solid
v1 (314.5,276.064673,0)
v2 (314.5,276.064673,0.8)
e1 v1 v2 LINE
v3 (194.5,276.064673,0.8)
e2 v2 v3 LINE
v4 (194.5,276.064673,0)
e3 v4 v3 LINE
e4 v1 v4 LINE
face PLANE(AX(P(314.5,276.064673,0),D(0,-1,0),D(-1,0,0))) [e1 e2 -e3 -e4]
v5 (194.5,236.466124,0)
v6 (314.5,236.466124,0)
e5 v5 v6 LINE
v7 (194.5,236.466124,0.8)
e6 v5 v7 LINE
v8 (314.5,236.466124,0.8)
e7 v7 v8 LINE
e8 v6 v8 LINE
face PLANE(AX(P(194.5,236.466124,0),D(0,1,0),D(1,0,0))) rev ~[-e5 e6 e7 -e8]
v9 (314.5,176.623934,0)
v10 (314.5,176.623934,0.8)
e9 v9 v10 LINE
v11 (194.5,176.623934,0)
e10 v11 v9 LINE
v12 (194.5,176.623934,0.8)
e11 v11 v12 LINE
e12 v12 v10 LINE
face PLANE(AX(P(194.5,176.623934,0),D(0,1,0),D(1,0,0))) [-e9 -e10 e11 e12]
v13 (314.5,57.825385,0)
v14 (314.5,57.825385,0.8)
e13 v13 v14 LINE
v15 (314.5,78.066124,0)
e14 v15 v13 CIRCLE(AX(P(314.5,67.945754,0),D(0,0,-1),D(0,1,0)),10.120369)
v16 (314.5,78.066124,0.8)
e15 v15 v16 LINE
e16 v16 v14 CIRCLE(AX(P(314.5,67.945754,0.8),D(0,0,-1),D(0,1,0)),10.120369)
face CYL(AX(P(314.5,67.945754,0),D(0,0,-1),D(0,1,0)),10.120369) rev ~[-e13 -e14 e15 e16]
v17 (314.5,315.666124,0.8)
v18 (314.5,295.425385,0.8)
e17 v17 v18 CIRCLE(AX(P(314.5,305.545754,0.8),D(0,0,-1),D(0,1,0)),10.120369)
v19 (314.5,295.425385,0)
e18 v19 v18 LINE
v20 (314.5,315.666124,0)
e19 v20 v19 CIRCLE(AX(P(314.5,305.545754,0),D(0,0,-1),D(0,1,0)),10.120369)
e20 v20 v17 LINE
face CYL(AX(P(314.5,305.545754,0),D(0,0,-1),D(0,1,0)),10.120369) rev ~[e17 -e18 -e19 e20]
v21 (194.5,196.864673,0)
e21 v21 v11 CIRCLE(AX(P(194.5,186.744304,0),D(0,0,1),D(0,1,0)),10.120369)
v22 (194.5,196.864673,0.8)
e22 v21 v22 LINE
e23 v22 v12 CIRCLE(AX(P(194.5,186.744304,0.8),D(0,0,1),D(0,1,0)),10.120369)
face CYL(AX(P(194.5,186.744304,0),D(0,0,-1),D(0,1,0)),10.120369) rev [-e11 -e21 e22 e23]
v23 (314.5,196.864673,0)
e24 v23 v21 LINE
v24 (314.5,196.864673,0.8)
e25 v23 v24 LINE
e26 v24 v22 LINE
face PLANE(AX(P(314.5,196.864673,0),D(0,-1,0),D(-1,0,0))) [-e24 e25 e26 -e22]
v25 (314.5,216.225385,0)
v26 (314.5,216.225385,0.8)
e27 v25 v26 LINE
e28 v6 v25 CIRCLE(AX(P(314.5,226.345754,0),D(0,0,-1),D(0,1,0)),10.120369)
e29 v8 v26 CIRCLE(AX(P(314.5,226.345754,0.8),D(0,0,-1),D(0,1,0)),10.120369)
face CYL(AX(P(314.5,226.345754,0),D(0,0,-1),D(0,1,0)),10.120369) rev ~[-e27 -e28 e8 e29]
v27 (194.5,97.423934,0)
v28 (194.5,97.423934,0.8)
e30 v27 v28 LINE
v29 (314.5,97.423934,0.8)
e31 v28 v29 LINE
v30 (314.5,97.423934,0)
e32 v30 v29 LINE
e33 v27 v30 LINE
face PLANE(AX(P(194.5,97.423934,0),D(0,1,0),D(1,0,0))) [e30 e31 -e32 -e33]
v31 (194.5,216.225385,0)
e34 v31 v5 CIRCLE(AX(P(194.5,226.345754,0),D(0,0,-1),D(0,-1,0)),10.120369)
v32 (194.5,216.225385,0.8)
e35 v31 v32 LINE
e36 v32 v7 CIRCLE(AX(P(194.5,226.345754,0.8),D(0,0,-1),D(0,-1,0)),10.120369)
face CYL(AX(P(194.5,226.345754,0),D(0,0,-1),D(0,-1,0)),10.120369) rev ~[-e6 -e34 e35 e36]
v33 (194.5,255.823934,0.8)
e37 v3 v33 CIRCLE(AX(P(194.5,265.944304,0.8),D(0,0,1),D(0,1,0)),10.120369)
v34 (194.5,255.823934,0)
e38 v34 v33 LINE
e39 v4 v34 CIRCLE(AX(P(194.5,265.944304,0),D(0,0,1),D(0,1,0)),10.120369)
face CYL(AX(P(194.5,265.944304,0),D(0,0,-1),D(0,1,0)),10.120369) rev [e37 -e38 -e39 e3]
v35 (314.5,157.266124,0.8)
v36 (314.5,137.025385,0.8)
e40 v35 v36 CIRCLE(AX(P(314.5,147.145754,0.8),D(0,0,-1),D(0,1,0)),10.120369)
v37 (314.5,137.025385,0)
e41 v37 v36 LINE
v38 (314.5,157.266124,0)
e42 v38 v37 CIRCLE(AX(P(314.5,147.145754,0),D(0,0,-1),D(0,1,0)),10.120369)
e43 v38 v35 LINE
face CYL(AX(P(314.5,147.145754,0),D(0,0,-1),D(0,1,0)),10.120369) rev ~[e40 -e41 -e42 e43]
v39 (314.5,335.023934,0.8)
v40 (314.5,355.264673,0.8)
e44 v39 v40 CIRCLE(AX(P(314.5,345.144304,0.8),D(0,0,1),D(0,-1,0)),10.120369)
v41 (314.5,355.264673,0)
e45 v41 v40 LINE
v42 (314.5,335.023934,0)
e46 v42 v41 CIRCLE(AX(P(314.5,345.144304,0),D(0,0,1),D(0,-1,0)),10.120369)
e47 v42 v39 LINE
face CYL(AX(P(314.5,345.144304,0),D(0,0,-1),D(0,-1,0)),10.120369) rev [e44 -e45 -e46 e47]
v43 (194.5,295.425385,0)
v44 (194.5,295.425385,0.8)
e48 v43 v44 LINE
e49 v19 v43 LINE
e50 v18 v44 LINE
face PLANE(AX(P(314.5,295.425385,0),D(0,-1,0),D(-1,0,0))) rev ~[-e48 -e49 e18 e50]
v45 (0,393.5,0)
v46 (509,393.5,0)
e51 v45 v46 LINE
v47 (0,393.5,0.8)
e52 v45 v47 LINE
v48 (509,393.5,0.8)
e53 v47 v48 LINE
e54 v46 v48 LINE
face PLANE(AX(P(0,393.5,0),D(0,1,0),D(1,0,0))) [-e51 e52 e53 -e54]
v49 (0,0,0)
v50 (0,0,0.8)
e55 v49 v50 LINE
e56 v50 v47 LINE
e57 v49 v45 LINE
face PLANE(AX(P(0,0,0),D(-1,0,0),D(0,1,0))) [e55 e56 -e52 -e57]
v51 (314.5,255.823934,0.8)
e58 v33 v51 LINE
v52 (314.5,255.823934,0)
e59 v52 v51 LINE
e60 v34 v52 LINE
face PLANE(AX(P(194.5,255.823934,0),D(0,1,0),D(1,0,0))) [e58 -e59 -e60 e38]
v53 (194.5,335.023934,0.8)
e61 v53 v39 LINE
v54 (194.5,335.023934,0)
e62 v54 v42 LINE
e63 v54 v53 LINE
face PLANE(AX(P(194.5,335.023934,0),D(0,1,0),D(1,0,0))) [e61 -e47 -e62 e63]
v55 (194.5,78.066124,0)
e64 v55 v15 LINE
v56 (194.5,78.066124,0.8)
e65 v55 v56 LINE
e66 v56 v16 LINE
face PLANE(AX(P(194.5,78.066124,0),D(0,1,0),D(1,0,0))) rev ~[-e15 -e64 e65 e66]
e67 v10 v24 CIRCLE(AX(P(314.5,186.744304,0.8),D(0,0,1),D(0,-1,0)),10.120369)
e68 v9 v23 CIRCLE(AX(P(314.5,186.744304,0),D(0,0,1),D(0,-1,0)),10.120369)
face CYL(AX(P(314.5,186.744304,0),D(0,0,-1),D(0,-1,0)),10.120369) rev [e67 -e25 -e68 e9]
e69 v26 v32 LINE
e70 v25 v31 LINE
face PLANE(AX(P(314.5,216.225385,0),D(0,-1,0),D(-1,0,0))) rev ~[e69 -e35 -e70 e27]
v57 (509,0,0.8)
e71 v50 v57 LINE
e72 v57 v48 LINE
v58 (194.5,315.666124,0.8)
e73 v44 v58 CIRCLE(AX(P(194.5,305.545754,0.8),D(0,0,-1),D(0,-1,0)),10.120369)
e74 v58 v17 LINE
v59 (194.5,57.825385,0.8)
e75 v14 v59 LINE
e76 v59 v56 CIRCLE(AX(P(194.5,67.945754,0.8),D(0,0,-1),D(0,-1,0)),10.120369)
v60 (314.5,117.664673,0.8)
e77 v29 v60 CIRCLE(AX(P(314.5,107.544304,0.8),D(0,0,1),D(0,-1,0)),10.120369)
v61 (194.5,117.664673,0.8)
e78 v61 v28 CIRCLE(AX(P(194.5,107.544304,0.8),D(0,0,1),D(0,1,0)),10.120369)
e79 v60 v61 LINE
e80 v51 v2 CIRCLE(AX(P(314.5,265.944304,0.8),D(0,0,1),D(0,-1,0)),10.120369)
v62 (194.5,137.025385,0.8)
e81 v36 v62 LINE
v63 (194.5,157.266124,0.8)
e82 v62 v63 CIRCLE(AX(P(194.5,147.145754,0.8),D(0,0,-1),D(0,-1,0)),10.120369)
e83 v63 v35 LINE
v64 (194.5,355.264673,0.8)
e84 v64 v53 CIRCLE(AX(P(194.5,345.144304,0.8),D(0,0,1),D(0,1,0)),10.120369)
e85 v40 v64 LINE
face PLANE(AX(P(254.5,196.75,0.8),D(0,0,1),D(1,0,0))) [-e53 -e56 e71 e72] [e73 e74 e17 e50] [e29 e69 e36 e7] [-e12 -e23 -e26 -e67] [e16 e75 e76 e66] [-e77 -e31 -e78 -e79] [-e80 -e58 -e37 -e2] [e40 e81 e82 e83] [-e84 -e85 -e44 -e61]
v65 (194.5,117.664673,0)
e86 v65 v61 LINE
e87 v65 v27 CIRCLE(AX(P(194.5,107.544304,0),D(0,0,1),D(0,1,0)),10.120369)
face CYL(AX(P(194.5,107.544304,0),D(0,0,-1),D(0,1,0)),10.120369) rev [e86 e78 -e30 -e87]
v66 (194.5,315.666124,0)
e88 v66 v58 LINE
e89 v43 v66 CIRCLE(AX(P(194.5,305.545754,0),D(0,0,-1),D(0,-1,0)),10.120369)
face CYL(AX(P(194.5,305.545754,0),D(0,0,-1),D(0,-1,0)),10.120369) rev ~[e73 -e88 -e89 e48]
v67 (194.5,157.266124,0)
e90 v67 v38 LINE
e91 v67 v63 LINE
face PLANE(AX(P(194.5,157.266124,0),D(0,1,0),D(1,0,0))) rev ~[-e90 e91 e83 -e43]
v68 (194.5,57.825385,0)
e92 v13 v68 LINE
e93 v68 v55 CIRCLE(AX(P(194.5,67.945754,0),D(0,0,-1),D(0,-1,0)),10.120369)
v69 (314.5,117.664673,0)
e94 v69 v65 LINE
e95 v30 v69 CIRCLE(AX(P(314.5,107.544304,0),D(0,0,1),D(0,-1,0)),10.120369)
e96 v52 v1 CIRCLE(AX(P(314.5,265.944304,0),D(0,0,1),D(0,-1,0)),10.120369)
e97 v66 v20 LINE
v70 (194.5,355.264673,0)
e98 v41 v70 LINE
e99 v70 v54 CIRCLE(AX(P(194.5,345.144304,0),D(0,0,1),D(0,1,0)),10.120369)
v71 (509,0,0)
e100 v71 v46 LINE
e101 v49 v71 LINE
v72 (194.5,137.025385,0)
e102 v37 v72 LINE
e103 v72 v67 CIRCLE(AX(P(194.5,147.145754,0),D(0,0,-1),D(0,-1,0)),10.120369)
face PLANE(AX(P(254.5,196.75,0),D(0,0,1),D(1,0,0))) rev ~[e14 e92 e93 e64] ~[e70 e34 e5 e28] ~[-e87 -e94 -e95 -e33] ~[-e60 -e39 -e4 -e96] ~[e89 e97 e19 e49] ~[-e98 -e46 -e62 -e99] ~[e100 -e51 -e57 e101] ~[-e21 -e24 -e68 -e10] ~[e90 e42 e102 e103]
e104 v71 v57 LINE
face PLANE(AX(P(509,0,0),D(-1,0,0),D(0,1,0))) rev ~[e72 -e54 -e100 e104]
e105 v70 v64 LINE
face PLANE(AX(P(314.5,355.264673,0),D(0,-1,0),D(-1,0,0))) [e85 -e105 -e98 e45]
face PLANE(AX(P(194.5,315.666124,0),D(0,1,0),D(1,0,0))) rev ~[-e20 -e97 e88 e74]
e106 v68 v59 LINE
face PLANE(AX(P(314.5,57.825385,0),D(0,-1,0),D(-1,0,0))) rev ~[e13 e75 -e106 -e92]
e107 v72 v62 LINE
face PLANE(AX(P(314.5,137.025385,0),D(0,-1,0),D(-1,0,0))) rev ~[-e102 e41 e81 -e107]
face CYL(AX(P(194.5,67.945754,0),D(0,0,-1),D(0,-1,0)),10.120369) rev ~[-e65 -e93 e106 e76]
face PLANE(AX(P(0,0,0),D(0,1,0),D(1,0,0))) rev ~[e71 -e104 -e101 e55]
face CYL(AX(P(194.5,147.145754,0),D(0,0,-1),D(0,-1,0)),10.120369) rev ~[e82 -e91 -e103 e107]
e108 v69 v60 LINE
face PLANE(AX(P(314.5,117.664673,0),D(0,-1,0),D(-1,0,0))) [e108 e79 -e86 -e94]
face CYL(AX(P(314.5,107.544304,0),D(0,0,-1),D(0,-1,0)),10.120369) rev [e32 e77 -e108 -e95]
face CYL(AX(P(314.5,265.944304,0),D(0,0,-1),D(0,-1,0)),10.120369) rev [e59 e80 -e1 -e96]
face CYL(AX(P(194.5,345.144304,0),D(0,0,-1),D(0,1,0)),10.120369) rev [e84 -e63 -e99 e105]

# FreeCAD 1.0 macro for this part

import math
import FreeCAD as App
import Part
import Sketcher

V = App.Vector
Q = App.Units.Quantity

doc = App.newDocument("Part")
body = doc.addObject("PartDesign::Body", "Body")

# Sketch on XY plane
sketch1 = body.newObject("Sketcher::SketchObject", "Sketch")
sketch1.AttachmentSupport = (doc.getObject("XY_Plane"), [""])
sketch1.MapMode = "FlatFace"
sketch1.addGeometry([
    Part.LineSegment(V(0, 394, 0), V(0, 0, 0)),  # 0
    Part.LineSegment(V(0, 0, 0), V(509, 0, 0)),  # 1
    Part.LineSegment(V(509, 0, 0), V(509, 394, 0)),  # 2
    Part.LineSegment(V(509, 394, 0), V(0, 394, 0)),  # 3
    Part.ArcOfCircle(Part.Circle(V(194, 68, 0), V(0, 0, 1), 10), math.radians(90), math.radians(270)),  # 4
    Part.LineSegment(V(194, 78, 0), V(314, 78, 0)),  # 5
    Part.ArcOfCircle(Part.Circle(V(314, 68, 0), V(0, 0, 1), 10), math.radians(-90), math.radians(90)),  # 6
    Part.LineSegment(V(314, 58, 0), V(194, 58, 0)),  # 7
    Part.ArcOfCircle(Part.Circle(V(314, 108, 0), V(0, 0, 1), 10), math.radians(-90), math.radians(90)),  # 8
    Part.LineSegment(V(314, 97, 0), V(194, 97, 0)),  # 9
    Part.ArcOfCircle(Part.Circle(V(194, 108, 0), V(0, 0, 1), 10), math.radians(90), math.radians(270)),  # 10
    Part.LineSegment(V(194, 118, 0), V(314, 118, 0)),  # 11
    Part.ArcOfCircle(Part.Circle(V(194, 147, 0), V(0, 0, 1), 10), math.radians(90), math.radians(270)),  # 12
    Part.LineSegment(V(194, 157, 0), V(314, 157, 0)),  # 13
    Part.ArcOfCircle(Part.Circle(V(314, 147, 0), V(0, 0, 1), 10), math.radians(-90), math.radians(90)),  # 14
    Part.LineSegment(V(314, 137, 0), V(194, 137, 0)),  # 15
    Part.ArcOfCircle(Part.Circle(V(314, 187, 0), V(0, 0, 1), 10), math.radians(-90), math.radians(90)),  # 16
    Part.LineSegment(V(314, 177, 0), V(194, 177, 0)),  # 17
    Part.ArcOfCircle(Part.Circle(V(194, 187, 0), V(0, 0, 1), 10), math.radians(90), math.radians(270)),  # 18
    Part.LineSegment(V(194, 197, 0), V(314, 197, 0)),  # 19
    Part.ArcOfCircle(Part.Circle(V(194, 226, 0), V(0, 0, 1), 10), math.radians(90), math.radians(270)),  # 20
    Part.LineSegment(V(194, 236, 0), V(314, 236, 0)),  # 21
    Part.ArcOfCircle(Part.Circle(V(314, 226, 0), V(0, 0, 1), 10), math.radians(-90), math.radians(90)),  # 22
    Part.LineSegment(V(314, 216, 0), V(194, 216, 0)),  # 23
    Part.ArcOfCircle(Part.Circle(V(314, 266, 0), V(0, 0, 1), 10), math.radians(-90), math.radians(90)),  # 24
    Part.LineSegment(V(314, 256, 0), V(194, 256, 0)),  # 25
    Part.ArcOfCircle(Part.Circle(V(194, 266, 0), V(0, 0, 1), 10), math.radians(90), math.radians(270)),  # 26
    Part.LineSegment(V(194, 276, 0), V(314, 276, 0)),  # 27
    Part.ArcOfCircle(Part.Circle(V(194, 306, 0), V(0, 0, 1), 10), math.radians(90), math.radians(270)),  # 28
    Part.LineSegment(V(194, 316, 0), V(314, 316, 0)),  # 29
    Part.ArcOfCircle(Part.Circle(V(314, 306, 0), V(0, 0, 1), 10), math.radians(-90), math.radians(90)),  # 30
    Part.LineSegment(V(314, 295, 0), V(194, 295, 0)),  # 31
    Part.ArcOfCircle(Part.Circle(V(314, 345, 0), V(0, 0, 1), 10), math.radians(-90), math.radians(90)),  # 32
    Part.LineSegment(V(314, 335, 0), V(194, 335, 0)),  # 33
    Part.ArcOfCircle(Part.Circle(V(194, 345, 0), V(0, 0, 1), 10), math.radians(90), math.radians(270)),  # 34
    Part.LineSegment(V(194, 355, 0), V(314, 355, 0)),  # 35
], False)
sketch1.addConstraint([
    Sketcher.Constraint("Coincident", 0, 2, 1, 1),
    Sketcher.Constraint("Coincident", 1, 2, 2, 1),
    Sketcher.Constraint("Coincident", 2, 2, 3, 1),
    Sketcher.Constraint("Coincident", 3, 2, 0, 1),
    Sketcher.Constraint("Tangent", 4, 1, 5, 1),
    Sketcher.Constraint("Tangent", 5, 2, 6, 2),
    Sketcher.Constraint("Tangent", 6, 1, 7, 1),
    Sketcher.Constraint("Tangent", 7, 2, 4, 2),
    Sketcher.Constraint("Tangent", 8, 1, 9, 1),
    Sketcher.Constraint("Tangent", 9, 2, 10, 2),
    Sketcher.Constraint("Tangent", 10, 1, 11, 1),
    Sketcher.Constraint("Tangent", 11, 2, 8, 2),
    Sketcher.Constraint("Tangent", 12, 1, 13, 1),
    Sketcher.Constraint("Tangent", 13, 2, 14, 2),
    Sketcher.Constraint("Tangent", 14, 1, 15, 1),
    Sketcher.Constraint("Tangent", 15, 2, 12, 2),
    Sketcher.Constraint("Tangent", 16, 1, 17, 1),
    Sketcher.Constraint("Tangent", 17, 2, 18, 2),
    Sketcher.Constraint("Tangent", 18, 1, 19, 1),
    Sketcher.Constraint("Tangent", 19, 2, 16, 2),
    Sketcher.Constraint("Tangent", 20, 1, 21, 1),
    Sketcher.Constraint("Tangent", 21, 2, 22, 2),
    Sketcher.Constraint("Tangent", 22, 1, 23, 1),
    Sketcher.Constraint("Tangent", 23, 2, 20, 2),
    Sketcher.Constraint("Tangent", 24, 1, 25, 1),
    Sketcher.Constraint("Tangent", 25, 2, 26, 2),
    Sketcher.Constraint("Tangent", 26, 1, 27, 1),
    Sketcher.Constraint("Tangent", 27, 2, 24, 2),
    Sketcher.Constraint("Tangent", 28, 1, 29, 1),
    Sketcher.Constraint("Tangent", 29, 2, 30, 2),
    Sketcher.Constraint("Tangent", 30, 1, 31, 1),
    Sketcher.Constraint("Tangent", 31, 2, 28, 2),
    Sketcher.Constraint("Tangent", 32, 1, 33, 1),
    Sketcher.Constraint("Tangent", 33, 2, 34, 2),
    Sketcher.Constraint("Tangent", 34, 1, 35, 1),
    Sketcher.Constraint("Tangent", 35, 2, 32, 2),
    Sketcher.Constraint("Vertical", 0),
    Sketcher.Constraint("Horizontal", 1),
    Sketcher.Constraint("Vertical", 2),
    Sketcher.Constraint("Horizontal", 3),
    Sketcher.Constraint("Horizontal", 5),
    Sketcher.Constraint("Horizontal", 7),
    Sketcher.Constraint("Horizontal", 9),
    Sketcher.Constraint("Horizontal", 11),
    Sketcher.Constraint("Horizontal", 13),
    Sketcher.Constraint("Horizontal", 15),
    Sketcher.Constraint("Horizontal", 17),
    Sketcher.Constraint("Horizontal", 19),
    Sketcher.Constraint("Horizontal", 21),
    Sketcher.Constraint("Horizontal", 23),
    Sketcher.Constraint("Horizontal", 25),
    Sketcher.Constraint("Horizontal", 27),
    Sketcher.Constraint("Horizontal", 29),
    Sketcher.Constraint("Horizontal", 31),
    Sketcher.Constraint("Horizontal", 33),
    Sketcher.Constraint("Horizontal", 35),
    Sketcher.Constraint("Coincident", 0, 2, -1, 1),
    Sketcher.Constraint("Equal", 6, 8),
    Sketcher.Constraint("Equal", 10, 12),
    Sketcher.Constraint("Equal", 14, 16),
    Sketcher.Constraint("Equal", 18, 20),
    Sketcher.Constraint("Equal", 22, 24),
    Sketcher.Constraint("Equal", 26, 28),
    Sketcher.Constraint("Equal", 30, 32),
    Sketcher.Constraint("Vertical", 6, 3, 8, 3),
    Sketcher.Constraint("Vertical", 4, 3, 10, 3),
    Sketcher.Constraint("Vertical", 10, 3, 12, 3),
    Sketcher.Constraint("Vertical", 8, 3, 14, 3),
    Sketcher.Constraint("Vertical", 14, 3, 16, 3),
    Sketcher.Constraint("Vertical", 12, 3, 18, 3),
    Sketcher.Constraint("Vertical", 18, 3, 20, 3),
    Sketcher.Constraint("Vertical", 16, 3, 22, 3),
    Sketcher.Constraint("Vertical", 22, 3, 24, 3),
    Sketcher.Constraint("Vertical", 20, 3, 26, 3),
    Sketcher.Constraint("Vertical", 26, 3, 28, 3),
    Sketcher.Constraint("Vertical", 24, 3, 30, 3),
    Sketcher.Constraint("Vertical", 30, 3, 32, 3),
    Sketcher.Constraint("Vertical", 28, 3, 34, 3),
    Sketcher.Constraint("DistanceX", 1, 1, 1, 2, Q("509 mm")),
    Sketcher.Constraint("DistanceX", 5, 1, 5, 2, Q("120 mm")),
    Sketcher.Constraint("DistanceY", 0, 2, 0, 1, Q("393.5 mm")),
    Sketcher.Constraint("DistanceX", -1, 1, 4, 3, Q("194.5 mm")),
    Sketcher.Constraint("DistanceY", 4, 3, 12, 3, Q("79.2 mm")),
    Sketcher.Constraint("DistanceY", 8, 3, 16, 3, Q("79.2 mm")),
    Sketcher.Constraint("DistanceY", 12, 3, 20, 3, Q("79.2 mm")),
    Sketcher.Constraint("DistanceY", 16, 3, 24, 3, Q("79.2 mm")),
    Sketcher.Constraint("DistanceY", 20, 3, 28, 3, Q("79.2 mm")),
    Sketcher.Constraint("DistanceY", 24, 3, 32, 3, Q("79.2 mm")),
    Sketcher.Constraint("Radius", 4, Q("10.120369 mm")),
    Sketcher.Constraint("DistanceY", 6, 3, 8, 3, Q("39.598549 mm")),
    Sketcher.Constraint("DistanceY", -1, 1, 4, 3, Q("67.945754 mm")),
])
pad1 = body.newObject("PartDesign::Pad", "Pad")
pad1.Profile = sketch1
pad1.Length = 0.8

doc.recompute()
